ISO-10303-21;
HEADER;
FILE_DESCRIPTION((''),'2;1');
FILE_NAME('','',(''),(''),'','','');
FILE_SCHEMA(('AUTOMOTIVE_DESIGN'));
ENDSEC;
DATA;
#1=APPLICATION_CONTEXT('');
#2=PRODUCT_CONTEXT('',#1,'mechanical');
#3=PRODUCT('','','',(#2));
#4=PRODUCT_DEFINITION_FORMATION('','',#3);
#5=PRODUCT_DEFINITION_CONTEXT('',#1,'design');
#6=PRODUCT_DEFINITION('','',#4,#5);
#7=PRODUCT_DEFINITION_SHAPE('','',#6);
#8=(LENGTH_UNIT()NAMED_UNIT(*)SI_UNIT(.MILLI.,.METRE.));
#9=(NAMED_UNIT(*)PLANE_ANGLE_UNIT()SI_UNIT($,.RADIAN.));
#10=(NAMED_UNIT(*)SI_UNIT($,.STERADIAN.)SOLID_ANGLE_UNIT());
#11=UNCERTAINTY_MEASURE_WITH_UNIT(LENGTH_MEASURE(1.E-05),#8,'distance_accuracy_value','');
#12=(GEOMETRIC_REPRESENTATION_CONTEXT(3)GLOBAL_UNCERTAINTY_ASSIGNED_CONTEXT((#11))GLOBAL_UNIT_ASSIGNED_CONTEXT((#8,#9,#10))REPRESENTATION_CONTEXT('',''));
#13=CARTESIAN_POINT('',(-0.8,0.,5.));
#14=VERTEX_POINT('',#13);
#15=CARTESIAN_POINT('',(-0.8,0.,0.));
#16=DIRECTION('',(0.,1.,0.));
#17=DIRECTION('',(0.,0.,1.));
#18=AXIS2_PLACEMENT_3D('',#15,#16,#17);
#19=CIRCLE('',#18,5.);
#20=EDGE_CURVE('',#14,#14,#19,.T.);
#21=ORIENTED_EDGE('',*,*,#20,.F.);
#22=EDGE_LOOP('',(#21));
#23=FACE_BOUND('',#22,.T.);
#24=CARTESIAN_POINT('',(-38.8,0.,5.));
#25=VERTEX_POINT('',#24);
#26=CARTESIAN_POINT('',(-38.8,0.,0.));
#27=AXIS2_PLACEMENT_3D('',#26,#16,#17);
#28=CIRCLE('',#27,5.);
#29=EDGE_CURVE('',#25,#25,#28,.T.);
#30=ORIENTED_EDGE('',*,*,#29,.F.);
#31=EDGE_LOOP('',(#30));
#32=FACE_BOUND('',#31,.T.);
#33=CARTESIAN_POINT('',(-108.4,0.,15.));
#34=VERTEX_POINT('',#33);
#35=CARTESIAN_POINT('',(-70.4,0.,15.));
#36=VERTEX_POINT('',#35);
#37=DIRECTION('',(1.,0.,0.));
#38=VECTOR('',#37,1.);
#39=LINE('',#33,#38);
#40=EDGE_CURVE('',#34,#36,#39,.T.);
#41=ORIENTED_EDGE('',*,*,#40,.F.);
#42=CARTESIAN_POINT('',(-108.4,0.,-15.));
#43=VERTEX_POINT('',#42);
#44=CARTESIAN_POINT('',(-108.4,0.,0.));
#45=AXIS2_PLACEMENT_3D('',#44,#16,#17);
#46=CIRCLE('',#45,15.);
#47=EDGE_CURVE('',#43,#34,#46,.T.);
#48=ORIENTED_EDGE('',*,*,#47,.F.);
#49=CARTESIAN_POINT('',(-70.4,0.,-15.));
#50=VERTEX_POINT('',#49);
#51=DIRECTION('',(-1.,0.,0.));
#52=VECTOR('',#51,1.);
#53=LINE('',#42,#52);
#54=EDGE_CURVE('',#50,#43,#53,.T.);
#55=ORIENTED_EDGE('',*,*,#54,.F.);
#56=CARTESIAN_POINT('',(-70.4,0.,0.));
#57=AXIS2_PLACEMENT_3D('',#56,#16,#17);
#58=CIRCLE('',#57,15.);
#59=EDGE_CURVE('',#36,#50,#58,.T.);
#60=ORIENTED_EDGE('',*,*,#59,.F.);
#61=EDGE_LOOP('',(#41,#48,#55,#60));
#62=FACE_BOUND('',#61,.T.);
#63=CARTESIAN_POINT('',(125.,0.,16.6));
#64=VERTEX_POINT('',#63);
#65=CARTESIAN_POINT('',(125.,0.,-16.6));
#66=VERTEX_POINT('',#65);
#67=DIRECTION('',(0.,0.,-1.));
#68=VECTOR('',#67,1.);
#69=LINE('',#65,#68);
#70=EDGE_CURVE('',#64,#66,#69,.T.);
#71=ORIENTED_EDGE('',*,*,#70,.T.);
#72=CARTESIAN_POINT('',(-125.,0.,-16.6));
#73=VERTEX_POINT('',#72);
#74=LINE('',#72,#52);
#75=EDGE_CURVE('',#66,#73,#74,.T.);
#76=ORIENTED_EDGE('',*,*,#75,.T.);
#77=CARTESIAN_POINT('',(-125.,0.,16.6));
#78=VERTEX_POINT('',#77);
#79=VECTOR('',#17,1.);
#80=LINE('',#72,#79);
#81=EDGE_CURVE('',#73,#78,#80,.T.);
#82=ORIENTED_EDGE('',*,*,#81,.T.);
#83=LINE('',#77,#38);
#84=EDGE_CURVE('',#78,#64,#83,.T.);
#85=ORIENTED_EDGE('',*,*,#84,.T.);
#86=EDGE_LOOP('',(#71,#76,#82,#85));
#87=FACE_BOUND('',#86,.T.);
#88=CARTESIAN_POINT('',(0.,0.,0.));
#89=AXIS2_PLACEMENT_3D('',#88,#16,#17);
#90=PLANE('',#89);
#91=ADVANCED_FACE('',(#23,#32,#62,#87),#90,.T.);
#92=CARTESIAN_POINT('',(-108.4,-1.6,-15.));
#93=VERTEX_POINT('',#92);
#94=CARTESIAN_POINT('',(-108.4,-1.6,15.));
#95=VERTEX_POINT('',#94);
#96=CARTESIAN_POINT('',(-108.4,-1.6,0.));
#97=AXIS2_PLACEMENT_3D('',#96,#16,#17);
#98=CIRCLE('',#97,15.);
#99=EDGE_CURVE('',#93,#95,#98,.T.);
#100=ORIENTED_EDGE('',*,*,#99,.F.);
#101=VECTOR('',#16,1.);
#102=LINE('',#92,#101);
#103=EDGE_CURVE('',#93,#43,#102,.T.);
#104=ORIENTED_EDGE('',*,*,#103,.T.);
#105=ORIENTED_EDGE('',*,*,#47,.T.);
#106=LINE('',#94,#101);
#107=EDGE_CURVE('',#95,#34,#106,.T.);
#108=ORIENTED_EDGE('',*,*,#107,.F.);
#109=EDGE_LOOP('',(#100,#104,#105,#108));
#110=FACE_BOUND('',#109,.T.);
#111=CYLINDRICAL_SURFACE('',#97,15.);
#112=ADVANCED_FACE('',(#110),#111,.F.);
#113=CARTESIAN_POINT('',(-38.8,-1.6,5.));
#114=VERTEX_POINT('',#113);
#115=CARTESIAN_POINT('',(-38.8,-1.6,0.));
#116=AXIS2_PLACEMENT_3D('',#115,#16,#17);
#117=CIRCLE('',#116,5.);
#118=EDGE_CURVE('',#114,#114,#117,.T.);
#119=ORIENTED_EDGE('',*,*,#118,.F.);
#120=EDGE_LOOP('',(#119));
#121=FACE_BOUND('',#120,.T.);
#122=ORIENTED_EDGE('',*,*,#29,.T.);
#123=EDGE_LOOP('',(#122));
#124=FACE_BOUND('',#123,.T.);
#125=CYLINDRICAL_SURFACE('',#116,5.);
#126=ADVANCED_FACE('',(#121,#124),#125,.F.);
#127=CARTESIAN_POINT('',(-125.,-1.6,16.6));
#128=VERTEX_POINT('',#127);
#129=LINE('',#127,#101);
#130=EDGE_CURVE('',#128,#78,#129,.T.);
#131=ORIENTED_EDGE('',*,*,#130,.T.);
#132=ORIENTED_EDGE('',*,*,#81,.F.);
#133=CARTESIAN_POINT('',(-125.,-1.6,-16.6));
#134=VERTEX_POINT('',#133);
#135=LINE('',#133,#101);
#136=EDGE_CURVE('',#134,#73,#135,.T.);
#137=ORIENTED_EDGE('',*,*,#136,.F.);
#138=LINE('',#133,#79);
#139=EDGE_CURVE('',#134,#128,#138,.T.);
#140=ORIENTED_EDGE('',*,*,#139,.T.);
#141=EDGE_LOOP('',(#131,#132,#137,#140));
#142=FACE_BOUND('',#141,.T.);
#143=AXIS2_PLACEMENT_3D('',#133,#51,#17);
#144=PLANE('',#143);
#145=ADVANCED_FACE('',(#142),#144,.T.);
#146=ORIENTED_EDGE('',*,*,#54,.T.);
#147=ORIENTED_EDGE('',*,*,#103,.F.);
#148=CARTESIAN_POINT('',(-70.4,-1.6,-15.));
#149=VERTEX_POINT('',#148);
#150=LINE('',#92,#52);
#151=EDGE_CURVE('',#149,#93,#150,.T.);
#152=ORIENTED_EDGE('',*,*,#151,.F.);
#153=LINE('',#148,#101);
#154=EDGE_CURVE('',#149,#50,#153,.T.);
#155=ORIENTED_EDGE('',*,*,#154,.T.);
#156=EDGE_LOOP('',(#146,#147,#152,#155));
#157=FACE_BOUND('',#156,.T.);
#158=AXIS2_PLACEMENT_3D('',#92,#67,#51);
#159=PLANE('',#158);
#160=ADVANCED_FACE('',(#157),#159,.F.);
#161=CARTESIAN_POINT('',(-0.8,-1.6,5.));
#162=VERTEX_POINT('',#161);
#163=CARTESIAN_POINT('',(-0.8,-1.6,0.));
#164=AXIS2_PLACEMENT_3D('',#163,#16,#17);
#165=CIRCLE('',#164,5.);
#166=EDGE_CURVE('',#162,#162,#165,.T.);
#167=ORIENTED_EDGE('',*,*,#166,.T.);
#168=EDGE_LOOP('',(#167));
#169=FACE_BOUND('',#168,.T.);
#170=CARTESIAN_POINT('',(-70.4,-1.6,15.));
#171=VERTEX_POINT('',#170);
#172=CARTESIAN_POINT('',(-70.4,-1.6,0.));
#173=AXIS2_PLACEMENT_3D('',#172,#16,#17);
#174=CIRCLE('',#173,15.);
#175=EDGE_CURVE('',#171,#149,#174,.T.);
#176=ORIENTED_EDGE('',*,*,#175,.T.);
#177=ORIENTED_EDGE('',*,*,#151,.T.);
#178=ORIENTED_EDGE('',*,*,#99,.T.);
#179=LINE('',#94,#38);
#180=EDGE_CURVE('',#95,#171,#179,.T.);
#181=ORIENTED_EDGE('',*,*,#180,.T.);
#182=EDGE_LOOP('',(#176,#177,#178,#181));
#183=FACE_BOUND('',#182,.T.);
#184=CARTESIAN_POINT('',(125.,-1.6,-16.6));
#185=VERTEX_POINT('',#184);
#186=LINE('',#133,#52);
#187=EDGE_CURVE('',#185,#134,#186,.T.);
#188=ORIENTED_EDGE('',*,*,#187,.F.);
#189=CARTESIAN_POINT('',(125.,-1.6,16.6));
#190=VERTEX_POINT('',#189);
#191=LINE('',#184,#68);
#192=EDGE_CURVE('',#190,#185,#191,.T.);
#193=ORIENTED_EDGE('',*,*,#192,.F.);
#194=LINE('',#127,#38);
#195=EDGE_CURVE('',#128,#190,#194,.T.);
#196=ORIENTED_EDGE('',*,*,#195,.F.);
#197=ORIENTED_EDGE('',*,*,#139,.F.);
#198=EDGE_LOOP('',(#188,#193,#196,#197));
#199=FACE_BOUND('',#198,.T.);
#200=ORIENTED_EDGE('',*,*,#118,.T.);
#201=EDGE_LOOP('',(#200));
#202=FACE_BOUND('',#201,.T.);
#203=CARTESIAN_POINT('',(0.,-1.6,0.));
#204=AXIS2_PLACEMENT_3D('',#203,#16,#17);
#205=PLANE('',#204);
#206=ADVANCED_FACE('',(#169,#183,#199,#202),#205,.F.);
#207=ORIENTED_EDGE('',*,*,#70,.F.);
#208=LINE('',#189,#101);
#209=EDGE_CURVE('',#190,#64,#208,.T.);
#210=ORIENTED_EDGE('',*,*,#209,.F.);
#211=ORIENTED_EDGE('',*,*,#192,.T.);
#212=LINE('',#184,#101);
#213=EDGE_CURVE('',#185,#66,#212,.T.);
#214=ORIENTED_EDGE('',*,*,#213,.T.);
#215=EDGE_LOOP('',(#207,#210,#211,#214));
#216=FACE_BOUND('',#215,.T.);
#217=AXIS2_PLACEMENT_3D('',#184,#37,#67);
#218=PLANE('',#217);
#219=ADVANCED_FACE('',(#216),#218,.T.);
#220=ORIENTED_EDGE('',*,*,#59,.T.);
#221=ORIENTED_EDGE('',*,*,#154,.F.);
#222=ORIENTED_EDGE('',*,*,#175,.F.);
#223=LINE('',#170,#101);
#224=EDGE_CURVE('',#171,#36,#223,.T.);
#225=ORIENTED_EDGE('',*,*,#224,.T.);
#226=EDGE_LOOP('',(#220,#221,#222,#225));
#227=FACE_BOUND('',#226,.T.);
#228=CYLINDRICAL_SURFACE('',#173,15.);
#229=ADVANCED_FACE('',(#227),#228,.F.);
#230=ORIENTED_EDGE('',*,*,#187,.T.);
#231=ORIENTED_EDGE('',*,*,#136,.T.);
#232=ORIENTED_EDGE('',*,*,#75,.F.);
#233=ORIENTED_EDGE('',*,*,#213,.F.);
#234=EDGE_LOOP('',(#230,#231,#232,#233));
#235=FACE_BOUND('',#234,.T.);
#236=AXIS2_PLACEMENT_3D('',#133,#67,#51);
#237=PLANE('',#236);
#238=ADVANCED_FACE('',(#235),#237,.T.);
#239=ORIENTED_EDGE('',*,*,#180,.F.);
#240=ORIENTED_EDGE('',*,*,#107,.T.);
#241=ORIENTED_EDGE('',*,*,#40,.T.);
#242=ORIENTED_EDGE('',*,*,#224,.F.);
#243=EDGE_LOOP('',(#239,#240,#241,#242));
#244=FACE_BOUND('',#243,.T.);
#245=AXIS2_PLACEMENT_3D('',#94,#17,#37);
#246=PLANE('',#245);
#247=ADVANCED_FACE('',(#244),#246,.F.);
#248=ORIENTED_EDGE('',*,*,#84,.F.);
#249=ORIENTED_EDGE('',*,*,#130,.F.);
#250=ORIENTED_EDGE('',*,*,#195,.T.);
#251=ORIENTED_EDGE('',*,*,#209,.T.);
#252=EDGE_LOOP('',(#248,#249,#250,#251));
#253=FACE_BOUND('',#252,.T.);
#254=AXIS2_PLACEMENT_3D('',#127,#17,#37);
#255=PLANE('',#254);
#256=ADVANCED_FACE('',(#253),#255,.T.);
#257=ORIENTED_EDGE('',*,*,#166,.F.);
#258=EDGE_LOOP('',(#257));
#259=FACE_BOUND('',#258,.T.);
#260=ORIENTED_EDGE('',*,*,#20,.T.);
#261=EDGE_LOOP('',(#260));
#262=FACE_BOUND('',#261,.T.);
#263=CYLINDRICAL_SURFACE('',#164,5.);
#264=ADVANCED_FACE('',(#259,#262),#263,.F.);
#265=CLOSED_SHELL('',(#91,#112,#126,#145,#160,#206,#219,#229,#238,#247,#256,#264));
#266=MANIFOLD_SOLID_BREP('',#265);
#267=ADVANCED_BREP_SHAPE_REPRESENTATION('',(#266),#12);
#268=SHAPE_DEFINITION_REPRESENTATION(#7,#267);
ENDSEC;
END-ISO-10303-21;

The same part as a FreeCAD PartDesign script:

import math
import FreeCAD as App
import Part
import Sketcher
Q = App.Units.Quantity


def add_polygon(sketch, points):
    """Adds a closed chain of lines whose ends are joined by coincident constraints."""
    first, n = sketch.GeometryCount, len(points)
    for a, b in zip(points, points[1:] + points[:1]):
        sketch.addGeometry(Part.LineSegment(App.Vector(*a, 0), App.Vector(*b, 0)), False)
    for i in range(n):
        sketch.addConstraint(Sketcher.Constraint("Coincident", first + i, 2, first + (i + 1) % n, 1))

doc = App.newDocument("Part")
body = doc.addObject("PartDesign::Body", "Body")

sketch1 = body.newObject("Sketcher::SketchObject", "Sketch")
sketch1.AttachmentSupport = (doc.getObject("XZ_Plane"), [""])
sketch1.MapMode = "FlatFace"
add_polygon(sketch1, [(-125, -16.6), (-125, 16.6), (125, 16.6), (125, -16.6)])
sketch1.addConstraint([
    Sketcher.Constraint("Vertical", 0),
    Sketcher.Constraint("Horizontal", 1),
    Sketcher.Constraint("Vertical", 2),
    Sketcher.Constraint("Horizontal", 3),
    Sketcher.Constraint("Symmetric", 0, 2, 2, 2, -1, 1),
    Sketcher.Constraint("DistanceX", 1, 1, 1, 2, Q("250 mm")),
    Sketcher.Constraint("DistanceY", 0, 1, 0, 2, Q("33.2 mm")),
])
pad1 = body.newObject("PartDesign::Pad", "Pad")
pad1.Profile = sketch1
pad1.Length = 1.6

sketch2 = body.newObject("Sketcher::SketchObject", "Sketch001")
sketch2.AttachmentSupport = (doc.getObject("XZ_Plane"), [""])
sketch2.MapMode = "FlatFace"
sketch2.addGeometry([
    Part.Circle(App.Vector(-38.8, 0, 0), App.Vector(0, 0, 1), 5),
    Part.Circle(App.Vector(-0.8, 0, 0), App.Vector(0, 0, 1), 5),
    Part.LineSegment(App.Vector(-70.4, -15, 0), App.Vector(-108.4, -15, 0)),
    Part.ArcOfCircle(Part.Circle(App.Vector(-108.4, 0, 0), App.Vector(0, 0, 1), 15), math.radians(90), math.radians(270)),
    Part.LineSegment(App.Vector(-108.4, 15, 0), App.Vector(-70.4, 15, 0)),
    Part.ArcOfCircle(Part.Circle(App.Vector(-70.4, 0, 0), App.Vector(0, 0, 1), 15), math.radians(-90), math.radians(90)),
], False)
sketch2.addConstraint([
    Sketcher.Constraint("Tangent", 2, 2, 3, 2),
    Sketcher.Constraint("Tangent", 3, 1, 4, 1),
    Sketcher.Constraint("Tangent", 4, 2, 5, 2),
    Sketcher.Constraint("Tangent", 5, 1, 2, 1),
    Sketcher.Constraint("Horizontal", 2),
    Sketcher.Constraint("Horizontal", 4),
    Sketcher.Constraint("Equal", 0, 1),
    Sketcher.Constraint("PointOnObject", 0, 3, -1),
    Sketcher.Constraint("PointOnObject", 1, 3, -1),
    Sketcher.Constraint("PointOnObject", 3, 3, -1),
    Sketcher.Constraint("Diameter", 0, Q("10 mm")),
    Sketcher.Constraint("Radius", 3, Q("15 mm")),
    Sketcher.Constraint("DistanceX", 2, 2, 2, 1, Q("38 mm")),
    Sketcher.Constraint("DistanceX", 0, 3, 1, 3, Q("38 mm")),
    Sketcher.Constraint("DistanceX", 0, 3, -1, 1, Q("38.8 mm")),
    Sketcher.Constraint("DistanceX", 3, 3, -1, 1, Q("108.4 mm")),
])
pocket1 = body.newObject("PartDesign::Pocket", "Pocket")
pocket1.Profile = sketch2
pocket1.Type = "ThroughAll"
pocket1.Reversed = True

doc.recompute()
